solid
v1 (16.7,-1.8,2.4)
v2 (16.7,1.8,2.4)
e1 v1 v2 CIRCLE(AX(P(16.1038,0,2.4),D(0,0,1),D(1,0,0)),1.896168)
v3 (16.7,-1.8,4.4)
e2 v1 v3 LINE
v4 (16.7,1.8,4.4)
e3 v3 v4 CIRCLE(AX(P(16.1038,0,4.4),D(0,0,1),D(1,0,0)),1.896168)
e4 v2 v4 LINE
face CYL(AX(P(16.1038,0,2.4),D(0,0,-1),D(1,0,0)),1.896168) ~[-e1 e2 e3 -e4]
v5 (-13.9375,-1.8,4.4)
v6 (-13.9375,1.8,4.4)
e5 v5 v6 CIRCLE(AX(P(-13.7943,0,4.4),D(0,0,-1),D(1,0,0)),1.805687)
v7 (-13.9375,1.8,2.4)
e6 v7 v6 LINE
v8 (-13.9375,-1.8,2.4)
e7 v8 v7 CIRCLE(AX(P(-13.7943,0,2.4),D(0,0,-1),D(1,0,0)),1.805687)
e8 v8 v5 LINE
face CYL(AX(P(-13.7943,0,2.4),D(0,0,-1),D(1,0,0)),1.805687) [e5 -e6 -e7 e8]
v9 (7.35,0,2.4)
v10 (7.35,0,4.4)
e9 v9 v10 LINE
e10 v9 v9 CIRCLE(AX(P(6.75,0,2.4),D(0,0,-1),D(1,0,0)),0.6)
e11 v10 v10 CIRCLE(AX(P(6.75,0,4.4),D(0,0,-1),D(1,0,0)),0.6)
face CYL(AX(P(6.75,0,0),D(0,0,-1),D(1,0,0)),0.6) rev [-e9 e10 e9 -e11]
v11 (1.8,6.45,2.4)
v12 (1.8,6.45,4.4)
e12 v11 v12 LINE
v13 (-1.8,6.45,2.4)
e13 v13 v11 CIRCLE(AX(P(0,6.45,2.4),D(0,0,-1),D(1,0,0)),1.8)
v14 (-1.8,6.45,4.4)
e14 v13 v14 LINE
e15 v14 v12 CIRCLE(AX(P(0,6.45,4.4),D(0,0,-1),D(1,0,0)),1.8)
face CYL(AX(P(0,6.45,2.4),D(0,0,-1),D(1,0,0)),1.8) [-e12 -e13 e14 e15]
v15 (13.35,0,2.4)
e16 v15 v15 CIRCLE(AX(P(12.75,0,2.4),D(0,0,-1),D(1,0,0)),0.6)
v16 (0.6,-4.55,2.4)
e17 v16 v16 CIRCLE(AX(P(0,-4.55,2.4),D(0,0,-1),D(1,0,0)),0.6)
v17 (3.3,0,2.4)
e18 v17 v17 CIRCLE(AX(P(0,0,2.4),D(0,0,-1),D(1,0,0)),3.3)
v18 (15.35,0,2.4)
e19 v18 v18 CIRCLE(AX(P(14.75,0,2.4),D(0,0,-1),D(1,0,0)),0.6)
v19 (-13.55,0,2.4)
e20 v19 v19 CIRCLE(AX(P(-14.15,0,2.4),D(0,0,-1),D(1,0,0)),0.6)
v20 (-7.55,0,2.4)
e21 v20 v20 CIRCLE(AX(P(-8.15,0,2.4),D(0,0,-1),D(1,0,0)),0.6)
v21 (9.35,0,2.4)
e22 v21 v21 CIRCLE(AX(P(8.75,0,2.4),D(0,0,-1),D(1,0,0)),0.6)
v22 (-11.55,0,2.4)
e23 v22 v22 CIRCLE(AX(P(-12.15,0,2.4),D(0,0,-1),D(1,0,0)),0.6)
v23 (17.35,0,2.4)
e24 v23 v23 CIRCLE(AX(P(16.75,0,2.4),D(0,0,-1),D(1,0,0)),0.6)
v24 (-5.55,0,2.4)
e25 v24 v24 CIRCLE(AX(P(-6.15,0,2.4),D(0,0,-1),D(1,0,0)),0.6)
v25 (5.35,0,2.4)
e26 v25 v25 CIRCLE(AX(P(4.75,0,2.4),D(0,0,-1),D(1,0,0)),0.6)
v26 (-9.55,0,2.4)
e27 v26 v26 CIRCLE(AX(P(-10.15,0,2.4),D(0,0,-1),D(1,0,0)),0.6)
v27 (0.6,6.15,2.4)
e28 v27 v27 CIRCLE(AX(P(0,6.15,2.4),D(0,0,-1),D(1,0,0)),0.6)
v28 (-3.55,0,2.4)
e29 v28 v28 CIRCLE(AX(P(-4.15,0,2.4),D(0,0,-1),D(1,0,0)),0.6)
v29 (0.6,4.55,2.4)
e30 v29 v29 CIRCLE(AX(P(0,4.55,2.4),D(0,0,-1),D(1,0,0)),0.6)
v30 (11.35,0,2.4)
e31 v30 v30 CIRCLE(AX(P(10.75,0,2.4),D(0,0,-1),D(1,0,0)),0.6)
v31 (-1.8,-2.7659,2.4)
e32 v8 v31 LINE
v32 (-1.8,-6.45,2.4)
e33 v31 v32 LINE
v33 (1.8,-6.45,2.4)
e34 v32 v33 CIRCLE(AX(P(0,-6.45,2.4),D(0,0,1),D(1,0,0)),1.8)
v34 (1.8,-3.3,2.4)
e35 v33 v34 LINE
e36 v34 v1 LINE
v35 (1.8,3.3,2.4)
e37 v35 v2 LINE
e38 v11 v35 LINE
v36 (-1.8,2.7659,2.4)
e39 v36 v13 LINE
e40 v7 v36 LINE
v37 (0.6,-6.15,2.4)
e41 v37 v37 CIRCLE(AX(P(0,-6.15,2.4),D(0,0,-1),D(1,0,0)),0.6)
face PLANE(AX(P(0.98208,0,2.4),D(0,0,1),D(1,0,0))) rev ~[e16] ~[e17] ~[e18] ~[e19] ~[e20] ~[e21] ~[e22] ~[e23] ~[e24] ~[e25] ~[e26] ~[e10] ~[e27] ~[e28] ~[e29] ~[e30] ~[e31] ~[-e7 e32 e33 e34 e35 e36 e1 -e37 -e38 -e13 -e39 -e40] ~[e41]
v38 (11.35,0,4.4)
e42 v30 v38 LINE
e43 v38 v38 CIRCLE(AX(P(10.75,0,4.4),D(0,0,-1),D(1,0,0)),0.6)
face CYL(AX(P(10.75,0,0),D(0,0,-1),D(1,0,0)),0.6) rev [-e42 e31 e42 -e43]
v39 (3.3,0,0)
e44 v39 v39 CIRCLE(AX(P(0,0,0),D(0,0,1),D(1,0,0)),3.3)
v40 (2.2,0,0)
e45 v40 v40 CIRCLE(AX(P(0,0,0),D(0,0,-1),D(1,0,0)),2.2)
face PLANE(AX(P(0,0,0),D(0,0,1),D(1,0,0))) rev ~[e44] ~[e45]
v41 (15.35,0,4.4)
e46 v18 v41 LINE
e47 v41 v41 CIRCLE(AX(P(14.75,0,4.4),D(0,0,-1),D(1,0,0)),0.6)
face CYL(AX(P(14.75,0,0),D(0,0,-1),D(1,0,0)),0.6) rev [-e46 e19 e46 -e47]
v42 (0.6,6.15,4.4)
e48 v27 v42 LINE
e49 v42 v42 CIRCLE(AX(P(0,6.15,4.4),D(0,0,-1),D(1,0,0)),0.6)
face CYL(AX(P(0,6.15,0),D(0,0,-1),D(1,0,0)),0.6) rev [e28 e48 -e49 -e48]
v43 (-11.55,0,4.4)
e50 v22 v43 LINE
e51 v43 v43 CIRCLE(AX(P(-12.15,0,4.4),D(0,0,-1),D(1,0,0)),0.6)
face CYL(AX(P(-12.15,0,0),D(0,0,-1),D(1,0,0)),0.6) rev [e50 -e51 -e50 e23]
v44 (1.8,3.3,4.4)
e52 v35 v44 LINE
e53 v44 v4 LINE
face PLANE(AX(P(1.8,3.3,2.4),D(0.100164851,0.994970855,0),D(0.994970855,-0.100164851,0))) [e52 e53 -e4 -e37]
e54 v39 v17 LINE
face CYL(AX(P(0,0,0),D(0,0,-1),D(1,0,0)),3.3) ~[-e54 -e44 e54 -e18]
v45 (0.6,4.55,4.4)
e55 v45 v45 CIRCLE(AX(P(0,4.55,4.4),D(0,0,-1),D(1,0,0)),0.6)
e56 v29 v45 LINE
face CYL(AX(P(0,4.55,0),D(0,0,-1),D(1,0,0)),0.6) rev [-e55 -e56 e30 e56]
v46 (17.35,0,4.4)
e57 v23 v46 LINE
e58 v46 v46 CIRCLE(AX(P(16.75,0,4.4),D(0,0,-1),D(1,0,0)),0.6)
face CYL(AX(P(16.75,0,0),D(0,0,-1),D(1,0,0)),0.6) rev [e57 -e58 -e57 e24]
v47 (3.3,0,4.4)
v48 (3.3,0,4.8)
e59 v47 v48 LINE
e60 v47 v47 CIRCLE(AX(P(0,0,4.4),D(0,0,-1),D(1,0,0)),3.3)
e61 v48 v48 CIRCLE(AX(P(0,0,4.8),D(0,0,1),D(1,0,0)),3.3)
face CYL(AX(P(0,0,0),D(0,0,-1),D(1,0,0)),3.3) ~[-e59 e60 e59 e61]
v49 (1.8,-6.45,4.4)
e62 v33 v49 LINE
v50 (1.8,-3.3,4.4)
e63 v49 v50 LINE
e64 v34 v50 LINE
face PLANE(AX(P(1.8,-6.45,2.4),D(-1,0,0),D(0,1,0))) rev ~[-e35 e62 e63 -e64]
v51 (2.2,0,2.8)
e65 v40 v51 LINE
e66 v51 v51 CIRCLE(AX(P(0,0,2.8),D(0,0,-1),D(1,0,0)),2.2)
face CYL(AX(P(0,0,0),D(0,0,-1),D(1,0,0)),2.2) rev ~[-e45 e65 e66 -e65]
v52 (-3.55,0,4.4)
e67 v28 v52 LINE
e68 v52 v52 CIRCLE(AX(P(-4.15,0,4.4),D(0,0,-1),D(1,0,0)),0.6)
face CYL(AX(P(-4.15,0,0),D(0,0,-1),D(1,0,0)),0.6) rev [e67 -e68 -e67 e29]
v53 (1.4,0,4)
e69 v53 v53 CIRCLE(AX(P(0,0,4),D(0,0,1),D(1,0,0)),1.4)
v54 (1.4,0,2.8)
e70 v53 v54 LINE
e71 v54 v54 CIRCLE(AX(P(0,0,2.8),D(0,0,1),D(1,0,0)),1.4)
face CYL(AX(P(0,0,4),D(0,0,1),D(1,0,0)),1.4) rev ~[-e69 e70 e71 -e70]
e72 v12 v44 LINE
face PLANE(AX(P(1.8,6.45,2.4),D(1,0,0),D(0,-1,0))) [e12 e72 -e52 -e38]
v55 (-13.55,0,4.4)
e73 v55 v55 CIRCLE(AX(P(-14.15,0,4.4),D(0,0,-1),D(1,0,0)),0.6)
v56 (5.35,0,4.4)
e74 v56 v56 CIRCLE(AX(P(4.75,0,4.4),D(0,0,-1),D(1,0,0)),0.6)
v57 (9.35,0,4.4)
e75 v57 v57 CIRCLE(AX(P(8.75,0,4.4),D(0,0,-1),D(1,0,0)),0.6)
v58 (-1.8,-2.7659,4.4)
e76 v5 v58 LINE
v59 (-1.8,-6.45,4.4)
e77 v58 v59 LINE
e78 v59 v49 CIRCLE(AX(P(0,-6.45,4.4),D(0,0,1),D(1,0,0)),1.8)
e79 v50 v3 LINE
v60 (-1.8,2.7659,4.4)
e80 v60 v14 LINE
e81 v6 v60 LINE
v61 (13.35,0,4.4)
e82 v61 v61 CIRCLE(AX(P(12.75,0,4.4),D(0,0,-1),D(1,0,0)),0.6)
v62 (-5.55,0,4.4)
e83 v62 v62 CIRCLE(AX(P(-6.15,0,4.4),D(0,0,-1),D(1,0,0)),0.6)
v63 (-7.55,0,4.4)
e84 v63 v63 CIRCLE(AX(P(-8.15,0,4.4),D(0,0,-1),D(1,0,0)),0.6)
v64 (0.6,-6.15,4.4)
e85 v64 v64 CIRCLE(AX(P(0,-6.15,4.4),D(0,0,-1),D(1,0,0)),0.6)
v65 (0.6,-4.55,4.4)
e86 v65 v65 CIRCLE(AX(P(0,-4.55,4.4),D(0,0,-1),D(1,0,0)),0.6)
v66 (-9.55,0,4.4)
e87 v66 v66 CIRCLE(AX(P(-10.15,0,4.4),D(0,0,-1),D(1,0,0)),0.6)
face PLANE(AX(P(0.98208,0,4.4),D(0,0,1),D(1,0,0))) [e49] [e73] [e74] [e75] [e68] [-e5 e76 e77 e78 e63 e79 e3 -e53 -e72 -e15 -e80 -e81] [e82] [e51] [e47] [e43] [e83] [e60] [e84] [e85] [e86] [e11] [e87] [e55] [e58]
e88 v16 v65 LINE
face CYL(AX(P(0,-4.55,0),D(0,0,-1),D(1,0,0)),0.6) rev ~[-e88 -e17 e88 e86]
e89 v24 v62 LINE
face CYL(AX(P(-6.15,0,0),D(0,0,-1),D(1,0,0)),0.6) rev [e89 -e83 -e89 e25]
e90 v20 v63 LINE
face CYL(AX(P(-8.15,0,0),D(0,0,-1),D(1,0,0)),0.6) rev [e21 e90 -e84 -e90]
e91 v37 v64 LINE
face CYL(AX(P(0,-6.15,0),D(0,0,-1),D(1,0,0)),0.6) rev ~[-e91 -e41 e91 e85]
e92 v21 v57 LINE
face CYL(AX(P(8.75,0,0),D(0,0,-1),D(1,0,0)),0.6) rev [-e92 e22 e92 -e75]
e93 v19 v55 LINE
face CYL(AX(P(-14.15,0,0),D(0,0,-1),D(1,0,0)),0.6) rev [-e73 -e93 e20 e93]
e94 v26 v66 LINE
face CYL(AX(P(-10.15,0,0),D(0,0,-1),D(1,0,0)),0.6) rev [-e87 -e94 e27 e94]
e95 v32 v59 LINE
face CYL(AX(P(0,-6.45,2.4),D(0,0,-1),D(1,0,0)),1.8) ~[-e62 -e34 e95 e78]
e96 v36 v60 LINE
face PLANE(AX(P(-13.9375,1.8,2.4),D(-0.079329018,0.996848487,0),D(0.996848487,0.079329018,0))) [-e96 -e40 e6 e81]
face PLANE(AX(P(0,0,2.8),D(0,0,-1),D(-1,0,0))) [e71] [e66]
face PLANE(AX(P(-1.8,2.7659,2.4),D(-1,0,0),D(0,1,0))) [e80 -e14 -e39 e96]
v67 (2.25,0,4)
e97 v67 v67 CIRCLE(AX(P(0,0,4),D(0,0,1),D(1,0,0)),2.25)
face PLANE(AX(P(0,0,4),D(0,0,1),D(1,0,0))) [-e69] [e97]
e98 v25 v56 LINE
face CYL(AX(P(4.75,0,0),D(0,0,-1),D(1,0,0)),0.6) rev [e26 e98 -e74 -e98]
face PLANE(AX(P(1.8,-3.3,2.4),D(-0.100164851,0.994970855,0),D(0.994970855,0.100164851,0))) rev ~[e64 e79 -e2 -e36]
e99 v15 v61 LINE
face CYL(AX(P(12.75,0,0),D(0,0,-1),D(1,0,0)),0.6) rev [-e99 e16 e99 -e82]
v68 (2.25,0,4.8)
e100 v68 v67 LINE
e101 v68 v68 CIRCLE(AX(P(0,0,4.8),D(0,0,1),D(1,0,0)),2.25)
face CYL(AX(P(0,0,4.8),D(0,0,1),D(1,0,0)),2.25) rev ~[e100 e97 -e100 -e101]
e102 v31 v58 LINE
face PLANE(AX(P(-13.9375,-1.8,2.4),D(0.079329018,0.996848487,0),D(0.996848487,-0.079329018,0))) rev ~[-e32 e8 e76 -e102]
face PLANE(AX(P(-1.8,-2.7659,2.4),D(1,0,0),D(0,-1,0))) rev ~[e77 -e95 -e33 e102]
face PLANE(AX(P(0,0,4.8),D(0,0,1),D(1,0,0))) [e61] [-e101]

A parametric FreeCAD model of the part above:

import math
import FreeCAD as App
import Part
import Sketcher
Q = App.Units.Quantity

doc = App.newDocument("Part")
body = doc.addObject("PartDesign::Body", "Body")

sketch1 = body.newObject("Sketcher::SketchObject", "Sketch")
sketch1.AttachmentSupport = (doc.getObject("XY_Plane"), [""])
sketch1.MapMode = "FlatFace"
sketch1.addGeometry(Part.Circle(App.Vector(0, 0, 0), App.Vector(0, 0, 1), 3.3), False)
sketch1.addConstraint([
    Sketcher.Constraint("Coincident", 0, 3, -1, 1),
    Sketcher.Constraint("Diameter", 0, Q("6.6 mm")),
])
pad1 = body.newObject("PartDesign::Pad", "Pad")
pad1.Profile = sketch1
pad1.Length = 4.8

sketch2 = body.newObject("Sketcher::SketchObject", "Sketch001")
sketch2.AttachmentSupport = (doc.getObject("XY_Plane"), [""])
sketch2.MapMode = "FlatFace"
sketch2.AttachmentOffset = App.Placement(App.Vector(0, 0, 4.8), App.Rotation())
sketch2.addGeometry(Part.Circle(App.Vector(0, 0, 0), App.Vector(0, 0, 1), 2.2), False)
sketch2.addConstraint([
    Sketcher.Constraint("Coincident", 0, 3, -1, 1),
    Sketcher.Constraint("Diameter", 0, Q("4.5 mm")),
])
pocket1 = body.newObject("PartDesign::Pocket", "Pocket")
pocket1.Profile = sketch2
pocket1.Length = 0.8

sketch3 = body.newObject("Sketcher::SketchObject", "Sketch002")
sketch3.AttachmentSupport = (doc.getObject("XY_Plane"), [""])
sketch3.MapMode = "FlatFace"
sketch3.AttachmentOffset = App.Placement(App.Vector(0, 0, 4), App.Rotation())
sketch3.addGeometry(Part.Circle(App.Vector(0, 0, 0), App.Vector(0, 0, 1), 1.4), False)
sketch3.addConstraint([
    Sketcher.Constraint("Coincident", 0, 3, -1, 1),
    Sketcher.Constraint("Diameter", 0, Q("2.8 mm")),
])
pocket2 = body.newObject("PartDesign::Pocket", "Pocket001")
pocket2.Profile = sketch3
pocket2.Type = "ThroughAll"

sketch4 = body.newObject("Sketcher::SketchObject", "Sketch003")
sketch4.AttachmentSupport = (doc.getObject("XY_Plane"), [""])
sketch4.MapMode = "FlatFace"
sketch4.addGeometry(Part.Circle(App.Vector(0, 0, 0), App.Vector(0, 0, 1), 2.2), False)
sketch4.addConstraint([
    Sketcher.Constraint("Coincident", 0, 3, -1, 1),
    Sketcher.Constraint("Diameter", 0, Q("4.4 mm")),
])
pocket3 = body.newObject("PartDesign::Pocket", "Pocket002")
pocket3.Profile = sketch4
pocket3.Length = 2.8
pocket3.Reversed = True

sketch5 = body.newObject("Sketcher::SketchObject", "Sketch004")
sketch5.AttachmentSupport = (doc.getObject("XY_Plane"), [""])
sketch5.MapMode = "FlatFace"
sketch5.AttachmentOffset = App.Placement(App.Vector(0, 0, 2.4), App.Rotation())
sketch5.addGeometry([
    Part.LineSegment(App.Vector(-1.8, -2.8, 0), App.Vector(-13.9, -1.8, 0)),
    Part.ArcOfCircle(Part.Circle(App.Vector(-13.8, 0, 0), App.Vector(0, 0, 1), 1.8), math.radians(95), math.radians(265)),
    Part.LineSegment(App.Vector(-13.9, 1.8, 0), App.Vector(-1.8, 2.8, 0)),
    Part.LineSegment(App.Vector(-1.8, 2.8, 0), App.Vector(-1.8, 6.5, 0)),
    Part.ArcOfCircle(Part.Circle(App.Vector(0, 6.5, 0), App.Vector(0, 0, 1), 1.8), math.radians(0), math.radians(180)),
    Part.LineSegment(App.Vector(1.8, 6.5, 0), App.Vector(1.8, 3.3, 0)),
    Part.LineSegment(App.Vector(1.8, 3.3, 0), App.Vector(16.7, 1.8, 0)),
    Part.ArcOfCircle(Part.Circle(App.Vector(16.1, 0, 0), App.Vector(0, 0, 1), 1.9), math.radians(-72), math.radians(72)),
    Part.LineSegment(App.Vector(16.7, -1.8, 0), App.Vector(1.8, -3.3, 0)),
    Part.LineSegment(App.Vector(1.8, -3.3, 0), App.Vector(1.8, -6.5, 0)),
    Part.ArcOfCircle(Part.Circle(App.Vector(0, -6.5, 0), App.Vector(0, 0, 1), 1.8), math.radians(180), math.radians(360)),
    Part.LineSegment(App.Vector(-1.8, -6.5, 0), App.Vector(-1.8, -2.8, 0)),
    Part.Circle(App.Vector(0, 0, 0), App.Vector(0, 0, 1), 2.7),
], False)
sketch5.addConstraint([
    Sketcher.Constraint("Tangent", 0, 2, 1, 2),
    Sketcher.Constraint("Tangent", 1, 1, 2, 1),
    Sketcher.Constraint("Coincident", 2, 2, 3, 1),
    Sketcher.Constraint("Tangent", 3, 2, 4, 2),
    Sketcher.Constraint("Tangent", 4, 1, 5, 1),
    Sketcher.Constraint("Coincident", 5, 2, 6, 1),
    Sketcher.Constraint("Coincident", 6, 2, 7, 2),
    Sketcher.Constraint("Coincident", 7, 1, 8, 1),
    Sketcher.Constraint("Coincident", 8, 2, 9, 1),
    Sketcher.Constraint("Tangent", 9, 2, 10, 2),
    Sketcher.Constraint("Tangent", 10, 1, 11, 1),
    Sketcher.Constraint("Coincident", 11, 2, 0, 1),
    Sketcher.Constraint("Vertical", 3),
    Sketcher.Constraint("Vertical", 5),
    Sketcher.Constraint("Vertical", 9),
    Sketcher.Constraint("Vertical", 11),
    Sketcher.Constraint("Coincident", 12, 3, -1, 1),
    Sketcher.Constraint("Equal", 4, 10),
    Sketcher.Constraint("Symmetric", 4, 3, 10, 3, -1, 1),
    Sketcher.Constraint("Symmetric", 0, 2, 1, 1, -1),
    Sketcher.Constraint("Symmetric", 6, 2, 7, 1, -1),
    Sketcher.Constraint("Symmetric", 5, 2, 8, 2, -1),
    Sketcher.Constraint("Horizontal", 1, 1, 6, 2),
    Sketcher.Constraint("Radius", 4, Q("1.8 mm")),
    Sketcher.Constraint("Diameter", 12, Q("5.4244 mm")),
    Sketcher.Constraint("DistanceY", 5, 2, 5, 1, Q("3.15 mm")),
    Sketcher.Constraint("DistanceY", 0, 2, -1, 1, Q("1.8 mm")),
    Sketcher.Constraint("DistanceY", -1, 1, 5, 2, Q("3.3 mm")),
    Sketcher.Constraint("DistanceX", -1, 1, 6, 2, Q("16.7 mm")),
    Sketcher.Constraint("Angle", 0, Q("175.45 deg")),
    Sketcher.Constraint("Radius", 7, Q("1.8962 mm")),
    Sketcher.Constraint("DistanceY", 3, 1, 3, 2, Q("3.684 mm")),
])
pad2 = body.newObject("PartDesign::Pad", "Pad001")
pad2.Profile = sketch5
pad2.Length = 2

sketch6 = body.newObject("Sketcher::SketchObject", "Sketch005")
sketch6.AttachmentSupport = (doc.getObject("XY_Plane"), [""])
sketch6.MapMode = "FlatFace"
sketch6.addGeometry([
    Part.Circle(App.Vector(0, 6.2, 0), App.Vector(0, 0, 1), 0.6),
    Part.Circle(App.Vector(0, 4.5, 0), App.Vector(0, 0, 1), 0.6),
], False)
sketch6.addConstraint([
    Sketcher.Constraint("Equal", 0, 1),
    Sketcher.Constraint("PointOnObject", 0, 3, -2),
    Sketcher.Constraint("PointOnObject", 1, 3, -2),
    Sketcher.Constraint("Diameter", 0, Q("1.2 mm")),
    Sketcher.Constraint("DistanceY", 1, 3, 0, 3, Q("1.6 mm")),
    Sketcher.Constraint("DistanceY", -1, 1, 0, 3, Q("6.15 mm")),
])
pocket4 = body.newObject("PartDesign::Pocket", "Pocket003")
pocket4.Profile = sketch6
pocket4.Type = "ThroughAll"
pocket4.Reversed = True
doc.recompute()

mirrored = body.newObject("PartDesign::Mirrored", "Mirrored")
mirrored.Originals = [pocket4]
mirrored.MirrorPlane = (doc.getObject("XZ_Plane"), [""])
body.Tip = mirrored

sketch7 = body.newObject("Sketcher::SketchObject", "Sketch006")
sketch7.AttachmentSupport = (doc.getObject("XY_Plane"), [""])
sketch7.MapMode = "FlatFace"
sketch7.addGeometry([
    Part.Circle(App.Vector(-12.2, 0, 0), App.Vector(0, 0, 1), 0.6),
    Part.Circle(App.Vector(-14.2, 0, 0), App.Vector(0, 0, 1), 0.6),
    Part.Circle(App.Vector(-10.2, 0, 0), App.Vector(0, 0, 1), 0.6),
    Part.Circle(App.Vector(-8.2, 0, 0), App.Vector(0, 0, 1), 0.6),
    Part.Circle(App.Vector(-6.2, 0, 0), App.Vector(0, 0, 1), 0.6),
    Part.Circle(App.Vector(-4.2, 0, 0), App.Vector(0, 0, 1), 0.6),
], False)
sketch7.addConstraint([
    Sketcher.Constraint("Equal", 0, 1),
    Sketcher.Constraint("Equal", 1, 2),
    Sketcher.Constraint("Equal", 2, 3),
    Sketcher.Constraint("Equal", 3, 4),
    Sketcher.Constraint("Equal", 4, 5),
    Sketcher.Constraint("PointOnObject", 0, 3, -1),
    Sketcher.Constraint("PointOnObject", 1, 3, -1),
    Sketcher.Constraint("PointOnObject", 2, 3, -1),
    Sketcher.Constraint("PointOnObject", 3, 3, -1),
    Sketcher.Constraint("PointOnObject", 4, 3, -1),
    Sketcher.Constraint("PointOnObject", 5, 3, -1),
    Sketcher.Constraint("Diameter", 0, Q("1.2 mm")),
    Sketcher.Constraint("DistanceX", 0, 3, -1, 1, Q("12.15 mm")),
    Sketcher.Constraint("DistanceX", 1, 3, 0, 3, Q("2 mm")),
    Sketcher.Constraint("DistanceX", 0, 3, 2, 3, Q("2 mm")),
    Sketcher.Constraint("DistanceX", 2, 3, 3, 3, Q("2 mm")),
    Sketcher.Constraint("DistanceX", 3, 3, 4, 3, Q("2 mm")),
    Sketcher.Constraint("DistanceX", 4, 3, 5, 3, Q("2 mm")),
])
pocket5 = body.newObject("PartDesign::Pocket", "Pocket004")
pocket5.Profile = sketch7
pocket5.Type = "ThroughAll"
pocket5.Reversed = True

sketch8 = body.newObject("Sketcher::SketchObject", "Sketch007")
sketch8.AttachmentSupport = (doc.getObject("XY_Plane"), [""])
sketch8.MapMode = "FlatFace"
sketch8.addGeometry([
    Part.Circle(App.Vector(4.8, 0, 0), App.Vector(0, 0, 1), 0.6),
    Part.Circle(App.Vector(6.8, 0, 0), App.Vector(0, 0, 1), 0.6),
    Part.Circle(App.Vector(8.8, 0, 0), App.Vector(0, 0, 1), 0.6),
    Part.Circle(App.Vector(10.8, 0, 0), App.Vector(0, 0, 1), 0.6),
    Part.Circle(App.Vector(12.8, 0, 0), App.Vector(0, 0, 1), 0.6),
    Part.Circle(App.Vector(14.8, 0, 0), App.Vector(0, 0, 1), 0.6),
    Part.Circle(App.Vector(16.8, 0, 0), App.Vector(0, 0, 1), 0.6),
], False)
sketch8.addConstraint([
    Sketcher.Constraint("Equal", 0, 1),
    Sketcher.Constraint("Equal", 1, 2),
    Sketcher.Constraint("Equal", 2, 3),
    Sketcher.Constraint("Equal", 3, 4),
    Sketcher.Constraint("Equal", 4, 5),
    Sketcher.Constraint("Equal", 5, 6),
    Sketcher.Constraint("PointOnObject", 0, 3, -1),
    Sketcher.Constraint("PointOnObject", 1, 3, -1),
    Sketcher.Constraint("PointOnObject", 2, 3, -1),
    Sketcher.Constraint("PointOnObject", 3, 3, -1),
    Sketcher.Constraint("PointOnObject", 4, 3, -1),
    Sketcher.Constraint("PointOnObject", 5, 3, -1),
    Sketcher.Constraint("PointOnObject", 6, 3, -1),
    Sketcher.Constraint("Diameter", 0, Q("1.2 mm")),
    Sketcher.Constraint("DistanceX", 0, 3, 1, 3, Q("2 mm")),
    Sketcher.Constraint("DistanceX", 1, 3, 2, 3, Q("2 mm")),
    Sketcher.Constraint("DistanceX", 2, 3, 3, 3, Q("2 mm")),
    Sketcher.Constraint("DistanceX", 3, 3, 4, 3, Q("2 mm")),
    Sketcher.Constraint("DistanceX", 4, 3, 5, 3, Q("2 mm")),
    Sketcher.Constraint("DistanceX", 5, 3, 6, 3, Q("2 mm")),
    Sketcher.Constraint("DistanceX", -1, 1, 0, 3, Q("4.75 mm")),
])
pocket6 = body.newObject("PartDesign::Pocket", "Pocket005")
pocket6.Profile = sketch8
pocket6.Type = "ThroughAll"
pocket6.Reversed = True

doc.recompute()
